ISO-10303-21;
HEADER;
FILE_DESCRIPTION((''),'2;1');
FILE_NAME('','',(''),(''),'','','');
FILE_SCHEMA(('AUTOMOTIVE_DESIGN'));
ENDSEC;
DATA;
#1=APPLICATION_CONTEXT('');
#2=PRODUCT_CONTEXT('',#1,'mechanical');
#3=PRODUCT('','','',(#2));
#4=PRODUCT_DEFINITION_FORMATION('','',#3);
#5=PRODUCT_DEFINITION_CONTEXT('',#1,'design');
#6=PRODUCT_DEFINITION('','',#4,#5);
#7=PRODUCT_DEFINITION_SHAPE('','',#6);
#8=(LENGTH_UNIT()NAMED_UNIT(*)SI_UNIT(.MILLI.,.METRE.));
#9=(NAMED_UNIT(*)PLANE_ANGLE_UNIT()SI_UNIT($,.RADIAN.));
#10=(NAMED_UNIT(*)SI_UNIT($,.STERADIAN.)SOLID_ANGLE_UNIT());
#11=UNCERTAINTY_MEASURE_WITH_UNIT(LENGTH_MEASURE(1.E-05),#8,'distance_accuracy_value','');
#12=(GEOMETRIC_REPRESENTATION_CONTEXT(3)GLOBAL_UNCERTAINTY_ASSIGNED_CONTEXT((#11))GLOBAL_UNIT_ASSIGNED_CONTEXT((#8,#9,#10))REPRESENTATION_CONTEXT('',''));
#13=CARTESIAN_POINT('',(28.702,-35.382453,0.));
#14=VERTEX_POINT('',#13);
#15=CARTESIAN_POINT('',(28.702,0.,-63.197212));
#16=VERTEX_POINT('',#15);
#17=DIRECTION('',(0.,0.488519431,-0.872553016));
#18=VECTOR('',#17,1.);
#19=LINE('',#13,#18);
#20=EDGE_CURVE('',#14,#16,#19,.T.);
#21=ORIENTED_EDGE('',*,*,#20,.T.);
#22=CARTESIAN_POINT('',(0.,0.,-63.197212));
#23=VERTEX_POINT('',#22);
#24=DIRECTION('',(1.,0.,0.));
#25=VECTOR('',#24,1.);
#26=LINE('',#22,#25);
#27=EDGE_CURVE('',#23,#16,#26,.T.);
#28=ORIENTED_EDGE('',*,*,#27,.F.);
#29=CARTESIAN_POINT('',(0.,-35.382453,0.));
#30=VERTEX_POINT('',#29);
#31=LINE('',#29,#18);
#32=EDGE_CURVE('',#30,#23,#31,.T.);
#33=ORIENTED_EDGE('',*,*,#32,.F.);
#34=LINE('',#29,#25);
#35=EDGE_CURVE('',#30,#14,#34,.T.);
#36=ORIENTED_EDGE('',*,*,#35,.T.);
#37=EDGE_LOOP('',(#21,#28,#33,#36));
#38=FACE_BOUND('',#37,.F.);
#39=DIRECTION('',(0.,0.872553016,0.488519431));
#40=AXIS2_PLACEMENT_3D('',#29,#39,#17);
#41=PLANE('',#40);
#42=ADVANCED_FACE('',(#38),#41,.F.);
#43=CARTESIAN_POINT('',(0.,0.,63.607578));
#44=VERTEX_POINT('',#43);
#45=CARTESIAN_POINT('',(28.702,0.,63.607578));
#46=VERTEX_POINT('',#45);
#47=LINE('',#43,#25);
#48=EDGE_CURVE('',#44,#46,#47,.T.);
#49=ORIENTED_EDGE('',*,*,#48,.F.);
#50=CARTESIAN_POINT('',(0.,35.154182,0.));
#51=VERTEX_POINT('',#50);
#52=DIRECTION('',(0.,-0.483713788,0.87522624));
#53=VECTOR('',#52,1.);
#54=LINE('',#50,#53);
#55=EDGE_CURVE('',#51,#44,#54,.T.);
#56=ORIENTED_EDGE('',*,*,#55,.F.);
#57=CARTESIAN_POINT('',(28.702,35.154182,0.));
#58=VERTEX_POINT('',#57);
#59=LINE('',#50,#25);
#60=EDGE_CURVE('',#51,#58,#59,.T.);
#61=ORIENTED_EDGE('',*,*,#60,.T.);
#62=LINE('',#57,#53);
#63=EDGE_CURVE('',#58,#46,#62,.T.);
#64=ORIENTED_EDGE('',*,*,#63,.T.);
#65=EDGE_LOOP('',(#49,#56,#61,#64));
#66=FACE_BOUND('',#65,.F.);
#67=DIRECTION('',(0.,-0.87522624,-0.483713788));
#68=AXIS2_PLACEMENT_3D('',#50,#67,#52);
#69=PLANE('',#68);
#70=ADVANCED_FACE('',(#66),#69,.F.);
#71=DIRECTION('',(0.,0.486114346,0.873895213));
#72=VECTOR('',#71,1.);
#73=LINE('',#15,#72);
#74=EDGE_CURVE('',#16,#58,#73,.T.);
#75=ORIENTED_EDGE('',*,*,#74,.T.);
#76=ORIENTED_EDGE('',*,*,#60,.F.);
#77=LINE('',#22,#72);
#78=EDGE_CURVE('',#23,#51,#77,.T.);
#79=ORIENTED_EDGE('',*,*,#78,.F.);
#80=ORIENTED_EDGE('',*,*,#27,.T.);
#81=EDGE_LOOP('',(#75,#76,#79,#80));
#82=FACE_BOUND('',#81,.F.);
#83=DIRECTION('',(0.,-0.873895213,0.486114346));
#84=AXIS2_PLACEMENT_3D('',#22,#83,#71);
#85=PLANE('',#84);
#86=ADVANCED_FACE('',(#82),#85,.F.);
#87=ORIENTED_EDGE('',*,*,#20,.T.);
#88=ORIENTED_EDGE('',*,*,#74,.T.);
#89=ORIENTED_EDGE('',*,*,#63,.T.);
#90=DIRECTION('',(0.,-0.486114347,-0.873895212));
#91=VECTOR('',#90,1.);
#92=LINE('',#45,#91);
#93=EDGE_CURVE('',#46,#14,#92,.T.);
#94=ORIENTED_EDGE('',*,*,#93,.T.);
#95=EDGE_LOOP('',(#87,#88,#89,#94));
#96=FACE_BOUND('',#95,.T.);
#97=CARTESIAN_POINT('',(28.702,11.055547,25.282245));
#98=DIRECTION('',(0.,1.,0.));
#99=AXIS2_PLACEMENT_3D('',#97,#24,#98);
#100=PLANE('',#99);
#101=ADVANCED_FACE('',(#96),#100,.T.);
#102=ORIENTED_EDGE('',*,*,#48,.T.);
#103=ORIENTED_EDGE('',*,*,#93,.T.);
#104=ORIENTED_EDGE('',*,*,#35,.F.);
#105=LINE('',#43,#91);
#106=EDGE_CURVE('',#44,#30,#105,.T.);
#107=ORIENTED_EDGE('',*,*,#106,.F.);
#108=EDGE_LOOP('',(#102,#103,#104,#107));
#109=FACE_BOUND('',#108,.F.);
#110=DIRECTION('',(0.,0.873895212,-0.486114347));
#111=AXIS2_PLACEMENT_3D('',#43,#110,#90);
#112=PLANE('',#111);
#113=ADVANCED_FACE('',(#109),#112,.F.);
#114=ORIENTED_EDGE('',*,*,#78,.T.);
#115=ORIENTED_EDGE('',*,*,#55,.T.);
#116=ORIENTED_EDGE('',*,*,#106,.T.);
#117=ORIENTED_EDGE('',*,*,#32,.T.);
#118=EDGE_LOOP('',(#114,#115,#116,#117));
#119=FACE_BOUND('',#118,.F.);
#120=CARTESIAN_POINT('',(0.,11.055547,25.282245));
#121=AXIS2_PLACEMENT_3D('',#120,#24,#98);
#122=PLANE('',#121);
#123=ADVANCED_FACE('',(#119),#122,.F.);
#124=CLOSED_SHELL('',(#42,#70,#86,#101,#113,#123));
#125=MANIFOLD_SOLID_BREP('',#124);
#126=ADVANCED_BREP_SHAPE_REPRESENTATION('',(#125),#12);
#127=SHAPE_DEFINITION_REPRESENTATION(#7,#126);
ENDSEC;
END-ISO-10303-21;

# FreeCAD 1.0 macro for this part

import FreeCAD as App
import Part
import Sketcher
from FreeCAD import Vector


def add_polygon(sketch, points):
    """Adds a closed chain of lines whose ends are joined by coincident constraints."""
    first, n = sketch.GeometryCount, len(points)
    for a, b in zip(points, points[1:] + points[:1]):
        sketch.addGeometry(Part.LineSegment(App.Vector(*a, 0), App.Vector(*b, 0)), False)
    for i in range(n):
        sketch.addConstraint(Sketcher.Constraint("Coincident", first + i, 2, first + (i + 1) % n, 1))

doc = App.newDocument("Part")
params = doc.addObject("Spreadsheet::Sheet", "Params")
for row, (alias, value) in enumerate([
    ("pad1_length", "1.13 in"),
], start=1):
    params.set(f"A{row}", alias)
    params.set(f"B{row}", "=" + value)
    params.setAlias(f"B{row}", alias)

body = doc.addObject("PartDesign::Body", "Body")

# Sketch on YZ plane
sketch1 = doc.addObject("Sketcher::SketchObject", "Sketch")
body.addObject(sketch1)
sketch1.AttachmentSupport = (doc.YZ_Plane, [""])
sketch1.MapMode = "FlatFace"
add_polygon(sketch1, [(35, 0), (0, 64), (-35, 0), (0, -63)])  # lines 0-3
sketch1.addConstraint(Sketcher.Constraint("PointOnObject", 0, 2, -2))
sketch1.addConstraint(Sketcher.Constraint("PointOnObject", 1, 2, -1))
sketch1.addConstraint(Sketcher.Constraint("PointOnObject", 2, 2, -2))
sketch1.addConstraint(Sketcher.Constraint("PointOnObject", 3, 2, -1))
sketch1.addConstraint(Sketcher.Constraint("Parallel", 1, 3))
sketch1.addConstraint(Sketcher.Constraint("DistanceY", 2, 2, 0, 2, 126.80479))
sketch1.addConstraint(Sketcher.Constraint("Distance", 0, 72.675584))
sketch1.addConstraint(Sketcher.Constraint("Distance", 1, 72.786276))
pad1 = doc.addObject("PartDesign::Pad", "Pad")
body.addObject(pad1)
pad1.Profile = sketch1
pad1.setExpression("Length", "Params.pad1_length")

doc.recompute()
